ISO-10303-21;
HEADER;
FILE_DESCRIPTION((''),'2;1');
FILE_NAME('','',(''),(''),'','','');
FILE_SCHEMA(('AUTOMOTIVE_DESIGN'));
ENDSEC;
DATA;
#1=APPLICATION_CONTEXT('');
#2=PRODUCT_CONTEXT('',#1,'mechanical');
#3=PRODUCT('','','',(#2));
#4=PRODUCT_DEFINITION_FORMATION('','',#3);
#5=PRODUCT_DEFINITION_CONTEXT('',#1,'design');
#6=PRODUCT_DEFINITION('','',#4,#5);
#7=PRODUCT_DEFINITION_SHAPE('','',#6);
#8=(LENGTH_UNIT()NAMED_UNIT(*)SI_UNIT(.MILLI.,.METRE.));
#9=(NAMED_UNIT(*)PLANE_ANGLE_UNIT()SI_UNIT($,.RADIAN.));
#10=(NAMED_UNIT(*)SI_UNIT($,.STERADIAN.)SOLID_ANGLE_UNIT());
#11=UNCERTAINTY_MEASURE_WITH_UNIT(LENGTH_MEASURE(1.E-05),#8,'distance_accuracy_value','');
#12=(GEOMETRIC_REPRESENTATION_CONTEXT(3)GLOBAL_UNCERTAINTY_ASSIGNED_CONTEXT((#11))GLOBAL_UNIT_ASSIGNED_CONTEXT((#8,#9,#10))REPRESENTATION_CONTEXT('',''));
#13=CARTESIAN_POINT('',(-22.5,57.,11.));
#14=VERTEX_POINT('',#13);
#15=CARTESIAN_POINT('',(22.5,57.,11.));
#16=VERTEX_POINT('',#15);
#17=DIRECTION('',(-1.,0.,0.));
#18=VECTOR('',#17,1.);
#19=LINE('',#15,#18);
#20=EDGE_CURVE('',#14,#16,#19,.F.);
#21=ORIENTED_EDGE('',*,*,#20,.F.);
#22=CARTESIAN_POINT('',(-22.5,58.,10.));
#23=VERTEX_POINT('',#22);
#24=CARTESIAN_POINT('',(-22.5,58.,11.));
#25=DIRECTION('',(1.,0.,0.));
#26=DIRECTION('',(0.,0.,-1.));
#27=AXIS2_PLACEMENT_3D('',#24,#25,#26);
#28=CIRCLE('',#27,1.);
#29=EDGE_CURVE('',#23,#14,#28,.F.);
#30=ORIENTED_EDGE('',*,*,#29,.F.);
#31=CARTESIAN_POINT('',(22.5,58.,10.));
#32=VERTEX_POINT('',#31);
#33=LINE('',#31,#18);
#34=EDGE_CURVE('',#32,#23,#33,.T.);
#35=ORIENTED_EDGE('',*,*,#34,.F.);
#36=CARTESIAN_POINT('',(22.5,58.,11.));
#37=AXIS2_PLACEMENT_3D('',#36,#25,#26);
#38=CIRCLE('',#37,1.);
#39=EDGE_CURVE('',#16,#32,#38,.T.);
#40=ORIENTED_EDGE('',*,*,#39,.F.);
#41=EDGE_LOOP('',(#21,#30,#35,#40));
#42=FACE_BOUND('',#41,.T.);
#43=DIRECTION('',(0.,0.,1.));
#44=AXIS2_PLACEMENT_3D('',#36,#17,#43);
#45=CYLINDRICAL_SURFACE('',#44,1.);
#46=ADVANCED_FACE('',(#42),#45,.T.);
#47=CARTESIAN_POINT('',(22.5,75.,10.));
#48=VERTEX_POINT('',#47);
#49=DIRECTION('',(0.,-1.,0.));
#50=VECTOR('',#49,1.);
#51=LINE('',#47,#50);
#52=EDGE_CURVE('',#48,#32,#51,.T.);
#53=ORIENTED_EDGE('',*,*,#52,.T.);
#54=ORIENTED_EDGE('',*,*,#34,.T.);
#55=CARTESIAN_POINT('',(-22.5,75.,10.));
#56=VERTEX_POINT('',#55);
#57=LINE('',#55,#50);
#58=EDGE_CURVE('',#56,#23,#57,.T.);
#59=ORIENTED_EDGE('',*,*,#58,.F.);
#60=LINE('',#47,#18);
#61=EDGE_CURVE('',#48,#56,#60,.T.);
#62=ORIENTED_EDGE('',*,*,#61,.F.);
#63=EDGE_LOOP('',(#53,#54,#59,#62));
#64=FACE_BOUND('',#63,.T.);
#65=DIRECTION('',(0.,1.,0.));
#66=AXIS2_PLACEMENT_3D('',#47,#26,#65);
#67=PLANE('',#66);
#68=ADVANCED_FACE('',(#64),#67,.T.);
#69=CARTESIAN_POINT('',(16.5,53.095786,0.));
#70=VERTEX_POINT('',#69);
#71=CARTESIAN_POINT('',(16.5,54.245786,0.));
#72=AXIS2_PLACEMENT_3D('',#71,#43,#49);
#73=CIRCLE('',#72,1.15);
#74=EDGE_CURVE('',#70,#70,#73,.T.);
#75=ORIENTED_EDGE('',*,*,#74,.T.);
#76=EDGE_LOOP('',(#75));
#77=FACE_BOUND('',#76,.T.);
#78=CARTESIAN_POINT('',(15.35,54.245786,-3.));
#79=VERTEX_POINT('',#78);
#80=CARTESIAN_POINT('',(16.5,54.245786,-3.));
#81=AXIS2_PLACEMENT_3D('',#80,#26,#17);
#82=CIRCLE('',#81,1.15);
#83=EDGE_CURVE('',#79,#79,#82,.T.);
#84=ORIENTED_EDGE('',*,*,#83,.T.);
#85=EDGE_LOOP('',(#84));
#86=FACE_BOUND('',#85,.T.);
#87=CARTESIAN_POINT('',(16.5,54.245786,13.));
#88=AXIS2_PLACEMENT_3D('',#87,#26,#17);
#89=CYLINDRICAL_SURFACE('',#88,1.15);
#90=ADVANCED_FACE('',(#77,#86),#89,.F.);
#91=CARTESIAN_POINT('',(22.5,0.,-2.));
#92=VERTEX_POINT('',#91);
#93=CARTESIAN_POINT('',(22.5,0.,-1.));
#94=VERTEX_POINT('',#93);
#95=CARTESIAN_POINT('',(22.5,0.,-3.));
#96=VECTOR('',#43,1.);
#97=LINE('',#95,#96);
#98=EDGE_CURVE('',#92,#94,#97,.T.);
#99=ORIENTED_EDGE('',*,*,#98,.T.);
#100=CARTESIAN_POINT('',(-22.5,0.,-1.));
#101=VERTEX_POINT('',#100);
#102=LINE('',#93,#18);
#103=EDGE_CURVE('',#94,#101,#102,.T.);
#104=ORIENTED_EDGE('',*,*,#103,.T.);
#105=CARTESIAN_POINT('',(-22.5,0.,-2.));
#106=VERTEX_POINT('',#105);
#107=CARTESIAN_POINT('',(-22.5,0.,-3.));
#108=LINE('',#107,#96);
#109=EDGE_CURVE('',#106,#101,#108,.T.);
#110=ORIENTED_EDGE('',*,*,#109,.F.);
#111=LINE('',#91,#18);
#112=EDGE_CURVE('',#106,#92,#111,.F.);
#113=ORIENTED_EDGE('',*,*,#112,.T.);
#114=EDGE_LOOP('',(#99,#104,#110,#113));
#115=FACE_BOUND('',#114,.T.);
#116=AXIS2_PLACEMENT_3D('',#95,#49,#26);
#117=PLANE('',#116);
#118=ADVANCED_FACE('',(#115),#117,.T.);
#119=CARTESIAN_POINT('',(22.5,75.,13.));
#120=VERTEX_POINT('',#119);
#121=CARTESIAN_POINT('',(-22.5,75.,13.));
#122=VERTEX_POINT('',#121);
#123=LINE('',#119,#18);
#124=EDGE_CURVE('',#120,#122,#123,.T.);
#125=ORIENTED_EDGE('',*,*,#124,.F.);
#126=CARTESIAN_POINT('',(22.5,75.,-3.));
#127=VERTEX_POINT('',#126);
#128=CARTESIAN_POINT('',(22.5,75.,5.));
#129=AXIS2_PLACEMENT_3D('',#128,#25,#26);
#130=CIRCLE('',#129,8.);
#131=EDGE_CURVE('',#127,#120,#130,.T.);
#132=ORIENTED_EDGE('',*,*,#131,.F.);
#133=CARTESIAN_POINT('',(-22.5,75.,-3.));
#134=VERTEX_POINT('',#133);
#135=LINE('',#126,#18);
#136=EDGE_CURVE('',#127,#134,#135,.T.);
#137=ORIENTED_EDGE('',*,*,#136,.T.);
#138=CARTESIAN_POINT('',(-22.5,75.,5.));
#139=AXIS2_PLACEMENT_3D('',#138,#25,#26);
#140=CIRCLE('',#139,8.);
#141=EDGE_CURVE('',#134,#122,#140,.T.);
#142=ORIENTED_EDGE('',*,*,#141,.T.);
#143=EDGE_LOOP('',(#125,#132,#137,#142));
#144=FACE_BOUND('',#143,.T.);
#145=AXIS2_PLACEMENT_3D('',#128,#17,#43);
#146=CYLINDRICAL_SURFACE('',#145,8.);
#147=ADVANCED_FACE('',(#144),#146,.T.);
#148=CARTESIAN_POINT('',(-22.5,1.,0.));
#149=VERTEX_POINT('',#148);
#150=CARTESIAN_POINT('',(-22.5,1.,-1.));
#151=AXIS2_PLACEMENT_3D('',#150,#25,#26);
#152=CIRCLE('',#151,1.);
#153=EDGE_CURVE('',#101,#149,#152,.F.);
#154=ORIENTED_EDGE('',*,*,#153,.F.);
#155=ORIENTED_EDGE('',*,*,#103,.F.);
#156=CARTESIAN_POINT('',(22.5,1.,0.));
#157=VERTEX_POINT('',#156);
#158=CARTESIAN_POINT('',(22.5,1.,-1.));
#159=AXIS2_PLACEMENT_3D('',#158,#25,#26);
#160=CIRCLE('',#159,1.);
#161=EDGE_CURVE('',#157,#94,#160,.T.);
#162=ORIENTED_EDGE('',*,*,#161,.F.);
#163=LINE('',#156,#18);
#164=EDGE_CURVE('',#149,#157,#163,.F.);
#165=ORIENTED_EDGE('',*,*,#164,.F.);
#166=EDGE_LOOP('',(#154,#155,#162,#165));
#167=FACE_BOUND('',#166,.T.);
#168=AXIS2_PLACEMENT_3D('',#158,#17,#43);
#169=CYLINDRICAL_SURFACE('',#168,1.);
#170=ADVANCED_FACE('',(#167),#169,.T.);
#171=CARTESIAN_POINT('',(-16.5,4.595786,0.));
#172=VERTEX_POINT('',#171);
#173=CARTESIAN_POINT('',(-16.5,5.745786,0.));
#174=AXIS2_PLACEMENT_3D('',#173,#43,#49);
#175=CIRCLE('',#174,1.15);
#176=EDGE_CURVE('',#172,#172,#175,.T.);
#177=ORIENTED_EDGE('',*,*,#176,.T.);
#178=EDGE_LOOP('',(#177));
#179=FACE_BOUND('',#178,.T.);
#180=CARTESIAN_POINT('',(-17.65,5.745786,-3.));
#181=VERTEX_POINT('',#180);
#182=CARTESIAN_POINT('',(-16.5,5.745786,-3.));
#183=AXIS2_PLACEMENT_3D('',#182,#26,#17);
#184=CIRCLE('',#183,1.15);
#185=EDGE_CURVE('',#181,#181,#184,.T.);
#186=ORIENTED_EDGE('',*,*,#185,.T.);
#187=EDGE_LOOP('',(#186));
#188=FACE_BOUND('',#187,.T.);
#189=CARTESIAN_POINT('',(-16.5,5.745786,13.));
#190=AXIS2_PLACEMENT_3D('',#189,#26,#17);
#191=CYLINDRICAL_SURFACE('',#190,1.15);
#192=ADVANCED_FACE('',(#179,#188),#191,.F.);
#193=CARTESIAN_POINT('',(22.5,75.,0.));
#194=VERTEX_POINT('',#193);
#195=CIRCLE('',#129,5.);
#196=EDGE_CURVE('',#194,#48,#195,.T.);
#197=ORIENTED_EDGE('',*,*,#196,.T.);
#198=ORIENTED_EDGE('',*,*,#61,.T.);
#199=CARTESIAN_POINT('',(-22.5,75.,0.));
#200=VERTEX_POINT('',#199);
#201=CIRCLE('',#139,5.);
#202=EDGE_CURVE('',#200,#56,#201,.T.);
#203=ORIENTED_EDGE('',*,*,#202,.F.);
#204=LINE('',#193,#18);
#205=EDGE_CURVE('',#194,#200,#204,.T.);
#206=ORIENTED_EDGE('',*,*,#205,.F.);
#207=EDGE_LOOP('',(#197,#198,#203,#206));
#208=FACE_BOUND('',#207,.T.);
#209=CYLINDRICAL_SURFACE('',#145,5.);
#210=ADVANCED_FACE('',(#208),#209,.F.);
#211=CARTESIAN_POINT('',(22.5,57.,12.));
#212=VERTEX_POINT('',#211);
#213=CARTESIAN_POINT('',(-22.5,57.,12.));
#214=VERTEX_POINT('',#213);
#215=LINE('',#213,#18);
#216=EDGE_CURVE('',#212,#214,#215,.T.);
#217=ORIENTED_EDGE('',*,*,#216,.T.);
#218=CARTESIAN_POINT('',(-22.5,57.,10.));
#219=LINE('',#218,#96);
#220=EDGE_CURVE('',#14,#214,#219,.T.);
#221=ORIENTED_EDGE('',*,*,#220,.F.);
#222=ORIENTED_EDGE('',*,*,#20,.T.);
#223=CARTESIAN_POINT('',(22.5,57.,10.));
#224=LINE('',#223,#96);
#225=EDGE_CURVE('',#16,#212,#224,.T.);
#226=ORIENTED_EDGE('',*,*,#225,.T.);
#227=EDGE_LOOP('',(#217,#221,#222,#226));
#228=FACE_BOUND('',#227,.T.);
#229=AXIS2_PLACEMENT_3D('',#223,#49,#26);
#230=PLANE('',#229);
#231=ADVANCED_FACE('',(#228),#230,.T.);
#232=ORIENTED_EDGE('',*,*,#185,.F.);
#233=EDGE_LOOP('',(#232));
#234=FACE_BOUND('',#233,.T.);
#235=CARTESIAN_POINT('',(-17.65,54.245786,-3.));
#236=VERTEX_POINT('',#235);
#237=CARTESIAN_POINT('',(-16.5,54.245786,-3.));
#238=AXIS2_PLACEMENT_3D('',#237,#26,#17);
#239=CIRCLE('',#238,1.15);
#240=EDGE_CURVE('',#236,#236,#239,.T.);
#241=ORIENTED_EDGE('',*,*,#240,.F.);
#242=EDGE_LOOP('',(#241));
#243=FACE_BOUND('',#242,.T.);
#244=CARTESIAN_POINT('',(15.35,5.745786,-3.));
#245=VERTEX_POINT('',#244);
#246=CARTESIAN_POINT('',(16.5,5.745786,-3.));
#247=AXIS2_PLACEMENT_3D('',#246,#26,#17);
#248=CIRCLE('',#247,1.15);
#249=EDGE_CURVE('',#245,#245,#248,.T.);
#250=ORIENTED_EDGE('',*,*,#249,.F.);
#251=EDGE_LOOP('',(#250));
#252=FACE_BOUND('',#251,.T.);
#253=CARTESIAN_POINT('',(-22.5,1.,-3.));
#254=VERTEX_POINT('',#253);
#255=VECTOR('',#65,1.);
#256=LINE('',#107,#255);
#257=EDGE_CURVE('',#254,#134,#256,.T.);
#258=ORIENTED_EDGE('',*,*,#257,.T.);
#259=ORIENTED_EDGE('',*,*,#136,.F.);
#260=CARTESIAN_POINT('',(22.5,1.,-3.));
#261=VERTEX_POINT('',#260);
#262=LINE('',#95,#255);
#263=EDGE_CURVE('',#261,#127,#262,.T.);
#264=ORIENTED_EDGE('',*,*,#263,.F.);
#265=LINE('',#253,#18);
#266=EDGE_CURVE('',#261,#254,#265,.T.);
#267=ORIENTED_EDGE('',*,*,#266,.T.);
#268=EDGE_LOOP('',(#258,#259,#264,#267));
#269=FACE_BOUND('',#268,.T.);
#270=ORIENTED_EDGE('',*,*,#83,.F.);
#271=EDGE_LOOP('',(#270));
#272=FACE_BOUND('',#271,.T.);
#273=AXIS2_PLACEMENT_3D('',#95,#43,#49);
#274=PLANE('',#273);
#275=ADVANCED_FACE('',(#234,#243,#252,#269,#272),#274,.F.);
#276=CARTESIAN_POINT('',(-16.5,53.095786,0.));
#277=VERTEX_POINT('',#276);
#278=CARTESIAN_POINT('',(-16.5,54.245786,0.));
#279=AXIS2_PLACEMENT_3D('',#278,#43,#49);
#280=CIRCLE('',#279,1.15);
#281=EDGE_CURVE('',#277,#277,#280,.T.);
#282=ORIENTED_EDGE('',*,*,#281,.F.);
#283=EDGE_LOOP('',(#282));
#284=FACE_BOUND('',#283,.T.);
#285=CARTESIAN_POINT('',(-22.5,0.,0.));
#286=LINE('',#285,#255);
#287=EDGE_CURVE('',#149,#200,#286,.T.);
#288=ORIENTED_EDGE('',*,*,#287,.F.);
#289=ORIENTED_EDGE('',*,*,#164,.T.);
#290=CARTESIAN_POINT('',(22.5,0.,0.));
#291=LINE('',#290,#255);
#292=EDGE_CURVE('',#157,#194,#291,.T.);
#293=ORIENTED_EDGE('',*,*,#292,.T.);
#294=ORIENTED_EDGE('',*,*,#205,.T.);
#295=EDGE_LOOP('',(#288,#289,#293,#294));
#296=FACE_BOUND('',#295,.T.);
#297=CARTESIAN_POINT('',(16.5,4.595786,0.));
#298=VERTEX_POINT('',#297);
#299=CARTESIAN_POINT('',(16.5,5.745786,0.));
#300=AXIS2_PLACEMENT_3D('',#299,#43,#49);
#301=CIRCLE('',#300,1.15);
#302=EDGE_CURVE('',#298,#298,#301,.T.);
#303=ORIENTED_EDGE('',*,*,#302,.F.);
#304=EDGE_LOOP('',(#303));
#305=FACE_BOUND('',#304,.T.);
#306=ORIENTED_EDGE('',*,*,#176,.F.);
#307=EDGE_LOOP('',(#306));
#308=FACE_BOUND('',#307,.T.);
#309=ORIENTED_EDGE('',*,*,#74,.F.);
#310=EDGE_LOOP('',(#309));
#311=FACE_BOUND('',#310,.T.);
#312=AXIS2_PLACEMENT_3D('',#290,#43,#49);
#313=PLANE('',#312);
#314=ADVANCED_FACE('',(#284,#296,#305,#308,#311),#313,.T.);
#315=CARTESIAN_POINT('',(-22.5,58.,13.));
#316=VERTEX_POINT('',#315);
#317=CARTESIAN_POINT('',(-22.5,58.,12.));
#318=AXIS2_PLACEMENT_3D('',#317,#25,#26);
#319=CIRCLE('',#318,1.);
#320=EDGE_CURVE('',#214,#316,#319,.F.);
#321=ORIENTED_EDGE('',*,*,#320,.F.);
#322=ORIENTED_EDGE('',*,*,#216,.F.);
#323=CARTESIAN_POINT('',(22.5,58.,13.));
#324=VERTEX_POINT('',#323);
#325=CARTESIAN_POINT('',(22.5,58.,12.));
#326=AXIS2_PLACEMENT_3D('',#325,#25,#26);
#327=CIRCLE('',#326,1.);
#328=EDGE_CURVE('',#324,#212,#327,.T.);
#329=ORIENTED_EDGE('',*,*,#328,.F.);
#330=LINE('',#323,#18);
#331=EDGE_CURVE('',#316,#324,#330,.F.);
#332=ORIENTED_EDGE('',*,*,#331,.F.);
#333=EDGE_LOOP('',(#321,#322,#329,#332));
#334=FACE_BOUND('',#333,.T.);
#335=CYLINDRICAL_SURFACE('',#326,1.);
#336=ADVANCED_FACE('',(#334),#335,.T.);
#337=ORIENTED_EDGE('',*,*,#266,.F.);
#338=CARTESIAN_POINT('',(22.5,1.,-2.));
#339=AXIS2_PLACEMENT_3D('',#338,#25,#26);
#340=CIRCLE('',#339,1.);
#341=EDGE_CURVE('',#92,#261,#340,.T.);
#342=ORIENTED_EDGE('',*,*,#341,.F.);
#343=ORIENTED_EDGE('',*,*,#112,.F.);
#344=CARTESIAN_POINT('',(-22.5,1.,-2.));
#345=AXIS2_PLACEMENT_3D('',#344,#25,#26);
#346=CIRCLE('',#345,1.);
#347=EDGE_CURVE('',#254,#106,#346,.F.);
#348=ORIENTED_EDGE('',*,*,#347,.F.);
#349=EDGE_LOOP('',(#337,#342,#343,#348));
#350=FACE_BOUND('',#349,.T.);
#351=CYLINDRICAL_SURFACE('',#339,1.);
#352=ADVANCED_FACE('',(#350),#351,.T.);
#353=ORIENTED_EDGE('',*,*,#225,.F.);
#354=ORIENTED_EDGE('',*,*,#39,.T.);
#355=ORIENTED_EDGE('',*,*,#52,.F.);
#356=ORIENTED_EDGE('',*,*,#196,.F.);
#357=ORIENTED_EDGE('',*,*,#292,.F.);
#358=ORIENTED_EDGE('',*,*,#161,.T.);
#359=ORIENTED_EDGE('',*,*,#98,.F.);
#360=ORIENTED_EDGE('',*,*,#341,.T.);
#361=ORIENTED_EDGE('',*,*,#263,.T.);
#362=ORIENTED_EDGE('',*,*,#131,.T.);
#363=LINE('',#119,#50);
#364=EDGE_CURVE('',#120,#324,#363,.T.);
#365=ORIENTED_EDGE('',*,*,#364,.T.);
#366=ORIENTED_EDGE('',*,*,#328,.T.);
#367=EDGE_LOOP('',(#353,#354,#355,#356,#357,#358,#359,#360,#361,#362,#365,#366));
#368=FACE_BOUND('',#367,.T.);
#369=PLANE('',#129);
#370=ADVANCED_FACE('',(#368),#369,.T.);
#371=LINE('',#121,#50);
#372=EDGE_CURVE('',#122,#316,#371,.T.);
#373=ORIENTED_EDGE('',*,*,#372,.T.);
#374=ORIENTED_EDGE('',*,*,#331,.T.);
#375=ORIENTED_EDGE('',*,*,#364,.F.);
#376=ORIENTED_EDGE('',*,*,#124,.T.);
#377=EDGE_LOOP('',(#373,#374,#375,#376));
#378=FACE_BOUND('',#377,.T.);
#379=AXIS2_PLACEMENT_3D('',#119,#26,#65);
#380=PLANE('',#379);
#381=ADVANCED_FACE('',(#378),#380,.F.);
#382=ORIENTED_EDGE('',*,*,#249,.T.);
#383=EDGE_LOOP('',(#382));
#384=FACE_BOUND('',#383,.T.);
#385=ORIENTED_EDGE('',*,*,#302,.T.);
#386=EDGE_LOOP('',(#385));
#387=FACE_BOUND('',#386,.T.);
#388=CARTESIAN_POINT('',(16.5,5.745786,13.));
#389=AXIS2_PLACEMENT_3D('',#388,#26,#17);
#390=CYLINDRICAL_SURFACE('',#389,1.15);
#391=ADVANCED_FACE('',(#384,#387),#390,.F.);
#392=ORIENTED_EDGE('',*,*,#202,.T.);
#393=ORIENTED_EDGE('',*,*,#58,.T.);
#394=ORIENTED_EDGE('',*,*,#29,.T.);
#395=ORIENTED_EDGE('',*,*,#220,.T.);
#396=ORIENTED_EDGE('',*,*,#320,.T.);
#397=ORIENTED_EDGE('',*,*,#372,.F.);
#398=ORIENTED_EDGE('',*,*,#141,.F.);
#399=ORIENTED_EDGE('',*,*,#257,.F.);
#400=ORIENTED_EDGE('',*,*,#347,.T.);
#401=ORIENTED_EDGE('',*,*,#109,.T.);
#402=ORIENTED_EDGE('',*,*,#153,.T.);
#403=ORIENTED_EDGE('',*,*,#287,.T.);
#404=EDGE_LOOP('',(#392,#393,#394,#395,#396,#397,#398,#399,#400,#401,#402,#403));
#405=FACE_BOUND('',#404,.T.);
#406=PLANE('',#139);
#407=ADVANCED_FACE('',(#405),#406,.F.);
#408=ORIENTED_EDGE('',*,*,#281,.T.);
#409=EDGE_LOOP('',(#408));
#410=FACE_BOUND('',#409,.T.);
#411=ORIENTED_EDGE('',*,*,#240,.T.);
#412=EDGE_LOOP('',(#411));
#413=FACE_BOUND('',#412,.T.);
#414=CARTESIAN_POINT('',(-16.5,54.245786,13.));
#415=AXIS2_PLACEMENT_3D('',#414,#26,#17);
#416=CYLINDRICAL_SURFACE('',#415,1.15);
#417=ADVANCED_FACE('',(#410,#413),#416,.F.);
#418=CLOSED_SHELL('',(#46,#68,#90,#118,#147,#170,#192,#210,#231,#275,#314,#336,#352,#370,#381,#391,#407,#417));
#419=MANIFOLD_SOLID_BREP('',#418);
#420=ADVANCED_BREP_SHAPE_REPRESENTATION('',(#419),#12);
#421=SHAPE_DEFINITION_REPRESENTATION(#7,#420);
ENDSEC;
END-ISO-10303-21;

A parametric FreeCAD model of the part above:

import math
import FreeCAD as App
import Part
import Sketcher

V = App.Vector
Q = App.Units.Quantity


def edges_at(feature, points):
    """Names of the edges that pass closest to the given points."""
    edges = feature.Shape.Edges
    near = lambda p: min(range(len(edges)), key=lambda i: edges[i].distToShape(Part.Vertex(*p))[0])
    return sorted({f"Edge{near(p) + 1}" for p in points})

doc = App.newDocument("Part")
body = doc.addObject("PartDesign::Body", "Body")

sketch1 = doc.addObject("Sketcher::SketchObject", "Sketch")
body.addObject(sketch1)
sketch1.AttachmentSupport = (doc.YZ_Plane, [""])
sketch1.MapMode = "FlatFace"
sketch1.addGeometry([
    Part.LineSegment(V(75, 0, 0), V(0, 0, 0)),
    Part.LineSegment(V(0, 0, 0), V(0, -3, 0)),
    Part.LineSegment(V(0, -3, 0), V(75, -3, 0)),
    Part.ArcOfCircle(Part.Circle(V(75, 5, 0), V(0, 0, 1), 8), math.radians(-90), math.radians(90)),
    Part.LineSegment(V(75, 13, 0), V(57, 13, 0)),
    Part.LineSegment(V(57, 13, 0), V(57, 10, 0)),
    Part.LineSegment(V(57, 10, 0), V(75, 10, 0)),
    Part.ArcOfCircle(Part.Circle(V(75, 5, 0), V(0, 0, 1), 5), math.radians(-90), math.radians(90)),
], False)
sketch1.addConstraint([
    Sketcher.Constraint("Coincident", 0, 2, 1, 1),
    Sketcher.Constraint("Coincident", 1, 2, 2, 1),
    Sketcher.Constraint("Tangent", 2, 2, 3, 1),
    Sketcher.Constraint("Tangent", 3, 2, 4, 1),
    Sketcher.Constraint("Coincident", 4, 2, 5, 1),
    Sketcher.Constraint("Coincident", 5, 2, 6, 1),
    Sketcher.Constraint("Tangent", 6, 2, 7, 2),
    Sketcher.Constraint("Tangent", 7, 1, 0, 1),
    Sketcher.Constraint("Horizontal", 0),
    Sketcher.Constraint("Vertical", 1),
    Sketcher.Constraint("Horizontal", 2),
    Sketcher.Constraint("Horizontal", 4),
    Sketcher.Constraint("Vertical", 5),
    Sketcher.Constraint("Horizontal", 6),
    Sketcher.Constraint("Coincident", 0, 2, -1, 1),
    Sketcher.Constraint("Coincident", 7, 3, 3, 3),
    Sketcher.Constraint("Radius", 3, Q("8 mm")),
    Sketcher.Constraint("Radius", 7, Q("5 mm")),
    Sketcher.Constraint("DistanceX", 0, 2, 0, 1, Q("75 mm")),
    Sketcher.Constraint("DistanceX", 4, 2, 4, 1, Q("18 mm")),
])
pad1 = doc.addObject("PartDesign::Pad", "Pad")
body.addObject(pad1)
pad1.Profile = sketch1
pad1.Length = 45
pad1.Midplane = True

sketch2 = doc.addObject("Sketcher::SketchObject", "Sketch001")
body.addObject(sketch2)
sketch2.AttachmentSupport = (doc.XY_Plane, [""])
sketch2.MapMode = "FlatFace"
sketch2.AttachmentOffset = App.Placement(V(0, 0, -3), App.Rotation())
sketch2.addGeometry([
    Part.Circle(V(16.5, 54.2, 0), V(0, 0, 1), 1.1),
    Part.Circle(V(-16.5, 54.2, 0), V(0, 0, 1), 1.1),
    Part.Circle(V(-16.5, 5.7, 0), V(0, 0, 1), 1.1),
    Part.Circle(V(16.5, 5.7, 0), V(0, 0, 1), 1.1),
], False)
sketch2.addConstraint([
    Sketcher.Constraint("Equal", 0, 1),
    Sketcher.Constraint("Equal", 1, 2),
    Sketcher.Constraint("Equal", 2, 3),
    Sketcher.Constraint("Symmetric", 0, 3, 1, 3, -2),
    Sketcher.Constraint("Symmetric", 2, 3, 3, 3, -2),
    Sketcher.Constraint("Vertical", 1, 3, 2, 3),
    Sketcher.Constraint("Diameter", 0, Q("2.3 mm")),
    Sketcher.Constraint("DistanceX", 1, 3, 0, 3, Q("33 mm")),
    Sketcher.Constraint("DistanceY", 2, 3, 1, 3, Q("48.5 mm")),
    Sketcher.Constraint("DistanceY", -1, 1, 0, 3, Q("54.245786 mm")),
])
pocket1 = doc.addObject("PartDesign::Pocket", "Pocket")
body.addObject(pocket1)
pocket1.Profile = sketch2
pocket1.Type = "ThroughAll"
pocket1.Reversed = True
doc.recompute()

fillet = doc.addObject("PartDesign::Fillet", "Fillet")
body.addObject(fillet)
fillet.Base = (pocket1, edges_at(pocket1, [
    (0, 0, -3),
    (0, 0, 0),
    (0, 57, 10),
    (0, 57, 13),
]))
fillet.Radius = 1

doc.recompute()
